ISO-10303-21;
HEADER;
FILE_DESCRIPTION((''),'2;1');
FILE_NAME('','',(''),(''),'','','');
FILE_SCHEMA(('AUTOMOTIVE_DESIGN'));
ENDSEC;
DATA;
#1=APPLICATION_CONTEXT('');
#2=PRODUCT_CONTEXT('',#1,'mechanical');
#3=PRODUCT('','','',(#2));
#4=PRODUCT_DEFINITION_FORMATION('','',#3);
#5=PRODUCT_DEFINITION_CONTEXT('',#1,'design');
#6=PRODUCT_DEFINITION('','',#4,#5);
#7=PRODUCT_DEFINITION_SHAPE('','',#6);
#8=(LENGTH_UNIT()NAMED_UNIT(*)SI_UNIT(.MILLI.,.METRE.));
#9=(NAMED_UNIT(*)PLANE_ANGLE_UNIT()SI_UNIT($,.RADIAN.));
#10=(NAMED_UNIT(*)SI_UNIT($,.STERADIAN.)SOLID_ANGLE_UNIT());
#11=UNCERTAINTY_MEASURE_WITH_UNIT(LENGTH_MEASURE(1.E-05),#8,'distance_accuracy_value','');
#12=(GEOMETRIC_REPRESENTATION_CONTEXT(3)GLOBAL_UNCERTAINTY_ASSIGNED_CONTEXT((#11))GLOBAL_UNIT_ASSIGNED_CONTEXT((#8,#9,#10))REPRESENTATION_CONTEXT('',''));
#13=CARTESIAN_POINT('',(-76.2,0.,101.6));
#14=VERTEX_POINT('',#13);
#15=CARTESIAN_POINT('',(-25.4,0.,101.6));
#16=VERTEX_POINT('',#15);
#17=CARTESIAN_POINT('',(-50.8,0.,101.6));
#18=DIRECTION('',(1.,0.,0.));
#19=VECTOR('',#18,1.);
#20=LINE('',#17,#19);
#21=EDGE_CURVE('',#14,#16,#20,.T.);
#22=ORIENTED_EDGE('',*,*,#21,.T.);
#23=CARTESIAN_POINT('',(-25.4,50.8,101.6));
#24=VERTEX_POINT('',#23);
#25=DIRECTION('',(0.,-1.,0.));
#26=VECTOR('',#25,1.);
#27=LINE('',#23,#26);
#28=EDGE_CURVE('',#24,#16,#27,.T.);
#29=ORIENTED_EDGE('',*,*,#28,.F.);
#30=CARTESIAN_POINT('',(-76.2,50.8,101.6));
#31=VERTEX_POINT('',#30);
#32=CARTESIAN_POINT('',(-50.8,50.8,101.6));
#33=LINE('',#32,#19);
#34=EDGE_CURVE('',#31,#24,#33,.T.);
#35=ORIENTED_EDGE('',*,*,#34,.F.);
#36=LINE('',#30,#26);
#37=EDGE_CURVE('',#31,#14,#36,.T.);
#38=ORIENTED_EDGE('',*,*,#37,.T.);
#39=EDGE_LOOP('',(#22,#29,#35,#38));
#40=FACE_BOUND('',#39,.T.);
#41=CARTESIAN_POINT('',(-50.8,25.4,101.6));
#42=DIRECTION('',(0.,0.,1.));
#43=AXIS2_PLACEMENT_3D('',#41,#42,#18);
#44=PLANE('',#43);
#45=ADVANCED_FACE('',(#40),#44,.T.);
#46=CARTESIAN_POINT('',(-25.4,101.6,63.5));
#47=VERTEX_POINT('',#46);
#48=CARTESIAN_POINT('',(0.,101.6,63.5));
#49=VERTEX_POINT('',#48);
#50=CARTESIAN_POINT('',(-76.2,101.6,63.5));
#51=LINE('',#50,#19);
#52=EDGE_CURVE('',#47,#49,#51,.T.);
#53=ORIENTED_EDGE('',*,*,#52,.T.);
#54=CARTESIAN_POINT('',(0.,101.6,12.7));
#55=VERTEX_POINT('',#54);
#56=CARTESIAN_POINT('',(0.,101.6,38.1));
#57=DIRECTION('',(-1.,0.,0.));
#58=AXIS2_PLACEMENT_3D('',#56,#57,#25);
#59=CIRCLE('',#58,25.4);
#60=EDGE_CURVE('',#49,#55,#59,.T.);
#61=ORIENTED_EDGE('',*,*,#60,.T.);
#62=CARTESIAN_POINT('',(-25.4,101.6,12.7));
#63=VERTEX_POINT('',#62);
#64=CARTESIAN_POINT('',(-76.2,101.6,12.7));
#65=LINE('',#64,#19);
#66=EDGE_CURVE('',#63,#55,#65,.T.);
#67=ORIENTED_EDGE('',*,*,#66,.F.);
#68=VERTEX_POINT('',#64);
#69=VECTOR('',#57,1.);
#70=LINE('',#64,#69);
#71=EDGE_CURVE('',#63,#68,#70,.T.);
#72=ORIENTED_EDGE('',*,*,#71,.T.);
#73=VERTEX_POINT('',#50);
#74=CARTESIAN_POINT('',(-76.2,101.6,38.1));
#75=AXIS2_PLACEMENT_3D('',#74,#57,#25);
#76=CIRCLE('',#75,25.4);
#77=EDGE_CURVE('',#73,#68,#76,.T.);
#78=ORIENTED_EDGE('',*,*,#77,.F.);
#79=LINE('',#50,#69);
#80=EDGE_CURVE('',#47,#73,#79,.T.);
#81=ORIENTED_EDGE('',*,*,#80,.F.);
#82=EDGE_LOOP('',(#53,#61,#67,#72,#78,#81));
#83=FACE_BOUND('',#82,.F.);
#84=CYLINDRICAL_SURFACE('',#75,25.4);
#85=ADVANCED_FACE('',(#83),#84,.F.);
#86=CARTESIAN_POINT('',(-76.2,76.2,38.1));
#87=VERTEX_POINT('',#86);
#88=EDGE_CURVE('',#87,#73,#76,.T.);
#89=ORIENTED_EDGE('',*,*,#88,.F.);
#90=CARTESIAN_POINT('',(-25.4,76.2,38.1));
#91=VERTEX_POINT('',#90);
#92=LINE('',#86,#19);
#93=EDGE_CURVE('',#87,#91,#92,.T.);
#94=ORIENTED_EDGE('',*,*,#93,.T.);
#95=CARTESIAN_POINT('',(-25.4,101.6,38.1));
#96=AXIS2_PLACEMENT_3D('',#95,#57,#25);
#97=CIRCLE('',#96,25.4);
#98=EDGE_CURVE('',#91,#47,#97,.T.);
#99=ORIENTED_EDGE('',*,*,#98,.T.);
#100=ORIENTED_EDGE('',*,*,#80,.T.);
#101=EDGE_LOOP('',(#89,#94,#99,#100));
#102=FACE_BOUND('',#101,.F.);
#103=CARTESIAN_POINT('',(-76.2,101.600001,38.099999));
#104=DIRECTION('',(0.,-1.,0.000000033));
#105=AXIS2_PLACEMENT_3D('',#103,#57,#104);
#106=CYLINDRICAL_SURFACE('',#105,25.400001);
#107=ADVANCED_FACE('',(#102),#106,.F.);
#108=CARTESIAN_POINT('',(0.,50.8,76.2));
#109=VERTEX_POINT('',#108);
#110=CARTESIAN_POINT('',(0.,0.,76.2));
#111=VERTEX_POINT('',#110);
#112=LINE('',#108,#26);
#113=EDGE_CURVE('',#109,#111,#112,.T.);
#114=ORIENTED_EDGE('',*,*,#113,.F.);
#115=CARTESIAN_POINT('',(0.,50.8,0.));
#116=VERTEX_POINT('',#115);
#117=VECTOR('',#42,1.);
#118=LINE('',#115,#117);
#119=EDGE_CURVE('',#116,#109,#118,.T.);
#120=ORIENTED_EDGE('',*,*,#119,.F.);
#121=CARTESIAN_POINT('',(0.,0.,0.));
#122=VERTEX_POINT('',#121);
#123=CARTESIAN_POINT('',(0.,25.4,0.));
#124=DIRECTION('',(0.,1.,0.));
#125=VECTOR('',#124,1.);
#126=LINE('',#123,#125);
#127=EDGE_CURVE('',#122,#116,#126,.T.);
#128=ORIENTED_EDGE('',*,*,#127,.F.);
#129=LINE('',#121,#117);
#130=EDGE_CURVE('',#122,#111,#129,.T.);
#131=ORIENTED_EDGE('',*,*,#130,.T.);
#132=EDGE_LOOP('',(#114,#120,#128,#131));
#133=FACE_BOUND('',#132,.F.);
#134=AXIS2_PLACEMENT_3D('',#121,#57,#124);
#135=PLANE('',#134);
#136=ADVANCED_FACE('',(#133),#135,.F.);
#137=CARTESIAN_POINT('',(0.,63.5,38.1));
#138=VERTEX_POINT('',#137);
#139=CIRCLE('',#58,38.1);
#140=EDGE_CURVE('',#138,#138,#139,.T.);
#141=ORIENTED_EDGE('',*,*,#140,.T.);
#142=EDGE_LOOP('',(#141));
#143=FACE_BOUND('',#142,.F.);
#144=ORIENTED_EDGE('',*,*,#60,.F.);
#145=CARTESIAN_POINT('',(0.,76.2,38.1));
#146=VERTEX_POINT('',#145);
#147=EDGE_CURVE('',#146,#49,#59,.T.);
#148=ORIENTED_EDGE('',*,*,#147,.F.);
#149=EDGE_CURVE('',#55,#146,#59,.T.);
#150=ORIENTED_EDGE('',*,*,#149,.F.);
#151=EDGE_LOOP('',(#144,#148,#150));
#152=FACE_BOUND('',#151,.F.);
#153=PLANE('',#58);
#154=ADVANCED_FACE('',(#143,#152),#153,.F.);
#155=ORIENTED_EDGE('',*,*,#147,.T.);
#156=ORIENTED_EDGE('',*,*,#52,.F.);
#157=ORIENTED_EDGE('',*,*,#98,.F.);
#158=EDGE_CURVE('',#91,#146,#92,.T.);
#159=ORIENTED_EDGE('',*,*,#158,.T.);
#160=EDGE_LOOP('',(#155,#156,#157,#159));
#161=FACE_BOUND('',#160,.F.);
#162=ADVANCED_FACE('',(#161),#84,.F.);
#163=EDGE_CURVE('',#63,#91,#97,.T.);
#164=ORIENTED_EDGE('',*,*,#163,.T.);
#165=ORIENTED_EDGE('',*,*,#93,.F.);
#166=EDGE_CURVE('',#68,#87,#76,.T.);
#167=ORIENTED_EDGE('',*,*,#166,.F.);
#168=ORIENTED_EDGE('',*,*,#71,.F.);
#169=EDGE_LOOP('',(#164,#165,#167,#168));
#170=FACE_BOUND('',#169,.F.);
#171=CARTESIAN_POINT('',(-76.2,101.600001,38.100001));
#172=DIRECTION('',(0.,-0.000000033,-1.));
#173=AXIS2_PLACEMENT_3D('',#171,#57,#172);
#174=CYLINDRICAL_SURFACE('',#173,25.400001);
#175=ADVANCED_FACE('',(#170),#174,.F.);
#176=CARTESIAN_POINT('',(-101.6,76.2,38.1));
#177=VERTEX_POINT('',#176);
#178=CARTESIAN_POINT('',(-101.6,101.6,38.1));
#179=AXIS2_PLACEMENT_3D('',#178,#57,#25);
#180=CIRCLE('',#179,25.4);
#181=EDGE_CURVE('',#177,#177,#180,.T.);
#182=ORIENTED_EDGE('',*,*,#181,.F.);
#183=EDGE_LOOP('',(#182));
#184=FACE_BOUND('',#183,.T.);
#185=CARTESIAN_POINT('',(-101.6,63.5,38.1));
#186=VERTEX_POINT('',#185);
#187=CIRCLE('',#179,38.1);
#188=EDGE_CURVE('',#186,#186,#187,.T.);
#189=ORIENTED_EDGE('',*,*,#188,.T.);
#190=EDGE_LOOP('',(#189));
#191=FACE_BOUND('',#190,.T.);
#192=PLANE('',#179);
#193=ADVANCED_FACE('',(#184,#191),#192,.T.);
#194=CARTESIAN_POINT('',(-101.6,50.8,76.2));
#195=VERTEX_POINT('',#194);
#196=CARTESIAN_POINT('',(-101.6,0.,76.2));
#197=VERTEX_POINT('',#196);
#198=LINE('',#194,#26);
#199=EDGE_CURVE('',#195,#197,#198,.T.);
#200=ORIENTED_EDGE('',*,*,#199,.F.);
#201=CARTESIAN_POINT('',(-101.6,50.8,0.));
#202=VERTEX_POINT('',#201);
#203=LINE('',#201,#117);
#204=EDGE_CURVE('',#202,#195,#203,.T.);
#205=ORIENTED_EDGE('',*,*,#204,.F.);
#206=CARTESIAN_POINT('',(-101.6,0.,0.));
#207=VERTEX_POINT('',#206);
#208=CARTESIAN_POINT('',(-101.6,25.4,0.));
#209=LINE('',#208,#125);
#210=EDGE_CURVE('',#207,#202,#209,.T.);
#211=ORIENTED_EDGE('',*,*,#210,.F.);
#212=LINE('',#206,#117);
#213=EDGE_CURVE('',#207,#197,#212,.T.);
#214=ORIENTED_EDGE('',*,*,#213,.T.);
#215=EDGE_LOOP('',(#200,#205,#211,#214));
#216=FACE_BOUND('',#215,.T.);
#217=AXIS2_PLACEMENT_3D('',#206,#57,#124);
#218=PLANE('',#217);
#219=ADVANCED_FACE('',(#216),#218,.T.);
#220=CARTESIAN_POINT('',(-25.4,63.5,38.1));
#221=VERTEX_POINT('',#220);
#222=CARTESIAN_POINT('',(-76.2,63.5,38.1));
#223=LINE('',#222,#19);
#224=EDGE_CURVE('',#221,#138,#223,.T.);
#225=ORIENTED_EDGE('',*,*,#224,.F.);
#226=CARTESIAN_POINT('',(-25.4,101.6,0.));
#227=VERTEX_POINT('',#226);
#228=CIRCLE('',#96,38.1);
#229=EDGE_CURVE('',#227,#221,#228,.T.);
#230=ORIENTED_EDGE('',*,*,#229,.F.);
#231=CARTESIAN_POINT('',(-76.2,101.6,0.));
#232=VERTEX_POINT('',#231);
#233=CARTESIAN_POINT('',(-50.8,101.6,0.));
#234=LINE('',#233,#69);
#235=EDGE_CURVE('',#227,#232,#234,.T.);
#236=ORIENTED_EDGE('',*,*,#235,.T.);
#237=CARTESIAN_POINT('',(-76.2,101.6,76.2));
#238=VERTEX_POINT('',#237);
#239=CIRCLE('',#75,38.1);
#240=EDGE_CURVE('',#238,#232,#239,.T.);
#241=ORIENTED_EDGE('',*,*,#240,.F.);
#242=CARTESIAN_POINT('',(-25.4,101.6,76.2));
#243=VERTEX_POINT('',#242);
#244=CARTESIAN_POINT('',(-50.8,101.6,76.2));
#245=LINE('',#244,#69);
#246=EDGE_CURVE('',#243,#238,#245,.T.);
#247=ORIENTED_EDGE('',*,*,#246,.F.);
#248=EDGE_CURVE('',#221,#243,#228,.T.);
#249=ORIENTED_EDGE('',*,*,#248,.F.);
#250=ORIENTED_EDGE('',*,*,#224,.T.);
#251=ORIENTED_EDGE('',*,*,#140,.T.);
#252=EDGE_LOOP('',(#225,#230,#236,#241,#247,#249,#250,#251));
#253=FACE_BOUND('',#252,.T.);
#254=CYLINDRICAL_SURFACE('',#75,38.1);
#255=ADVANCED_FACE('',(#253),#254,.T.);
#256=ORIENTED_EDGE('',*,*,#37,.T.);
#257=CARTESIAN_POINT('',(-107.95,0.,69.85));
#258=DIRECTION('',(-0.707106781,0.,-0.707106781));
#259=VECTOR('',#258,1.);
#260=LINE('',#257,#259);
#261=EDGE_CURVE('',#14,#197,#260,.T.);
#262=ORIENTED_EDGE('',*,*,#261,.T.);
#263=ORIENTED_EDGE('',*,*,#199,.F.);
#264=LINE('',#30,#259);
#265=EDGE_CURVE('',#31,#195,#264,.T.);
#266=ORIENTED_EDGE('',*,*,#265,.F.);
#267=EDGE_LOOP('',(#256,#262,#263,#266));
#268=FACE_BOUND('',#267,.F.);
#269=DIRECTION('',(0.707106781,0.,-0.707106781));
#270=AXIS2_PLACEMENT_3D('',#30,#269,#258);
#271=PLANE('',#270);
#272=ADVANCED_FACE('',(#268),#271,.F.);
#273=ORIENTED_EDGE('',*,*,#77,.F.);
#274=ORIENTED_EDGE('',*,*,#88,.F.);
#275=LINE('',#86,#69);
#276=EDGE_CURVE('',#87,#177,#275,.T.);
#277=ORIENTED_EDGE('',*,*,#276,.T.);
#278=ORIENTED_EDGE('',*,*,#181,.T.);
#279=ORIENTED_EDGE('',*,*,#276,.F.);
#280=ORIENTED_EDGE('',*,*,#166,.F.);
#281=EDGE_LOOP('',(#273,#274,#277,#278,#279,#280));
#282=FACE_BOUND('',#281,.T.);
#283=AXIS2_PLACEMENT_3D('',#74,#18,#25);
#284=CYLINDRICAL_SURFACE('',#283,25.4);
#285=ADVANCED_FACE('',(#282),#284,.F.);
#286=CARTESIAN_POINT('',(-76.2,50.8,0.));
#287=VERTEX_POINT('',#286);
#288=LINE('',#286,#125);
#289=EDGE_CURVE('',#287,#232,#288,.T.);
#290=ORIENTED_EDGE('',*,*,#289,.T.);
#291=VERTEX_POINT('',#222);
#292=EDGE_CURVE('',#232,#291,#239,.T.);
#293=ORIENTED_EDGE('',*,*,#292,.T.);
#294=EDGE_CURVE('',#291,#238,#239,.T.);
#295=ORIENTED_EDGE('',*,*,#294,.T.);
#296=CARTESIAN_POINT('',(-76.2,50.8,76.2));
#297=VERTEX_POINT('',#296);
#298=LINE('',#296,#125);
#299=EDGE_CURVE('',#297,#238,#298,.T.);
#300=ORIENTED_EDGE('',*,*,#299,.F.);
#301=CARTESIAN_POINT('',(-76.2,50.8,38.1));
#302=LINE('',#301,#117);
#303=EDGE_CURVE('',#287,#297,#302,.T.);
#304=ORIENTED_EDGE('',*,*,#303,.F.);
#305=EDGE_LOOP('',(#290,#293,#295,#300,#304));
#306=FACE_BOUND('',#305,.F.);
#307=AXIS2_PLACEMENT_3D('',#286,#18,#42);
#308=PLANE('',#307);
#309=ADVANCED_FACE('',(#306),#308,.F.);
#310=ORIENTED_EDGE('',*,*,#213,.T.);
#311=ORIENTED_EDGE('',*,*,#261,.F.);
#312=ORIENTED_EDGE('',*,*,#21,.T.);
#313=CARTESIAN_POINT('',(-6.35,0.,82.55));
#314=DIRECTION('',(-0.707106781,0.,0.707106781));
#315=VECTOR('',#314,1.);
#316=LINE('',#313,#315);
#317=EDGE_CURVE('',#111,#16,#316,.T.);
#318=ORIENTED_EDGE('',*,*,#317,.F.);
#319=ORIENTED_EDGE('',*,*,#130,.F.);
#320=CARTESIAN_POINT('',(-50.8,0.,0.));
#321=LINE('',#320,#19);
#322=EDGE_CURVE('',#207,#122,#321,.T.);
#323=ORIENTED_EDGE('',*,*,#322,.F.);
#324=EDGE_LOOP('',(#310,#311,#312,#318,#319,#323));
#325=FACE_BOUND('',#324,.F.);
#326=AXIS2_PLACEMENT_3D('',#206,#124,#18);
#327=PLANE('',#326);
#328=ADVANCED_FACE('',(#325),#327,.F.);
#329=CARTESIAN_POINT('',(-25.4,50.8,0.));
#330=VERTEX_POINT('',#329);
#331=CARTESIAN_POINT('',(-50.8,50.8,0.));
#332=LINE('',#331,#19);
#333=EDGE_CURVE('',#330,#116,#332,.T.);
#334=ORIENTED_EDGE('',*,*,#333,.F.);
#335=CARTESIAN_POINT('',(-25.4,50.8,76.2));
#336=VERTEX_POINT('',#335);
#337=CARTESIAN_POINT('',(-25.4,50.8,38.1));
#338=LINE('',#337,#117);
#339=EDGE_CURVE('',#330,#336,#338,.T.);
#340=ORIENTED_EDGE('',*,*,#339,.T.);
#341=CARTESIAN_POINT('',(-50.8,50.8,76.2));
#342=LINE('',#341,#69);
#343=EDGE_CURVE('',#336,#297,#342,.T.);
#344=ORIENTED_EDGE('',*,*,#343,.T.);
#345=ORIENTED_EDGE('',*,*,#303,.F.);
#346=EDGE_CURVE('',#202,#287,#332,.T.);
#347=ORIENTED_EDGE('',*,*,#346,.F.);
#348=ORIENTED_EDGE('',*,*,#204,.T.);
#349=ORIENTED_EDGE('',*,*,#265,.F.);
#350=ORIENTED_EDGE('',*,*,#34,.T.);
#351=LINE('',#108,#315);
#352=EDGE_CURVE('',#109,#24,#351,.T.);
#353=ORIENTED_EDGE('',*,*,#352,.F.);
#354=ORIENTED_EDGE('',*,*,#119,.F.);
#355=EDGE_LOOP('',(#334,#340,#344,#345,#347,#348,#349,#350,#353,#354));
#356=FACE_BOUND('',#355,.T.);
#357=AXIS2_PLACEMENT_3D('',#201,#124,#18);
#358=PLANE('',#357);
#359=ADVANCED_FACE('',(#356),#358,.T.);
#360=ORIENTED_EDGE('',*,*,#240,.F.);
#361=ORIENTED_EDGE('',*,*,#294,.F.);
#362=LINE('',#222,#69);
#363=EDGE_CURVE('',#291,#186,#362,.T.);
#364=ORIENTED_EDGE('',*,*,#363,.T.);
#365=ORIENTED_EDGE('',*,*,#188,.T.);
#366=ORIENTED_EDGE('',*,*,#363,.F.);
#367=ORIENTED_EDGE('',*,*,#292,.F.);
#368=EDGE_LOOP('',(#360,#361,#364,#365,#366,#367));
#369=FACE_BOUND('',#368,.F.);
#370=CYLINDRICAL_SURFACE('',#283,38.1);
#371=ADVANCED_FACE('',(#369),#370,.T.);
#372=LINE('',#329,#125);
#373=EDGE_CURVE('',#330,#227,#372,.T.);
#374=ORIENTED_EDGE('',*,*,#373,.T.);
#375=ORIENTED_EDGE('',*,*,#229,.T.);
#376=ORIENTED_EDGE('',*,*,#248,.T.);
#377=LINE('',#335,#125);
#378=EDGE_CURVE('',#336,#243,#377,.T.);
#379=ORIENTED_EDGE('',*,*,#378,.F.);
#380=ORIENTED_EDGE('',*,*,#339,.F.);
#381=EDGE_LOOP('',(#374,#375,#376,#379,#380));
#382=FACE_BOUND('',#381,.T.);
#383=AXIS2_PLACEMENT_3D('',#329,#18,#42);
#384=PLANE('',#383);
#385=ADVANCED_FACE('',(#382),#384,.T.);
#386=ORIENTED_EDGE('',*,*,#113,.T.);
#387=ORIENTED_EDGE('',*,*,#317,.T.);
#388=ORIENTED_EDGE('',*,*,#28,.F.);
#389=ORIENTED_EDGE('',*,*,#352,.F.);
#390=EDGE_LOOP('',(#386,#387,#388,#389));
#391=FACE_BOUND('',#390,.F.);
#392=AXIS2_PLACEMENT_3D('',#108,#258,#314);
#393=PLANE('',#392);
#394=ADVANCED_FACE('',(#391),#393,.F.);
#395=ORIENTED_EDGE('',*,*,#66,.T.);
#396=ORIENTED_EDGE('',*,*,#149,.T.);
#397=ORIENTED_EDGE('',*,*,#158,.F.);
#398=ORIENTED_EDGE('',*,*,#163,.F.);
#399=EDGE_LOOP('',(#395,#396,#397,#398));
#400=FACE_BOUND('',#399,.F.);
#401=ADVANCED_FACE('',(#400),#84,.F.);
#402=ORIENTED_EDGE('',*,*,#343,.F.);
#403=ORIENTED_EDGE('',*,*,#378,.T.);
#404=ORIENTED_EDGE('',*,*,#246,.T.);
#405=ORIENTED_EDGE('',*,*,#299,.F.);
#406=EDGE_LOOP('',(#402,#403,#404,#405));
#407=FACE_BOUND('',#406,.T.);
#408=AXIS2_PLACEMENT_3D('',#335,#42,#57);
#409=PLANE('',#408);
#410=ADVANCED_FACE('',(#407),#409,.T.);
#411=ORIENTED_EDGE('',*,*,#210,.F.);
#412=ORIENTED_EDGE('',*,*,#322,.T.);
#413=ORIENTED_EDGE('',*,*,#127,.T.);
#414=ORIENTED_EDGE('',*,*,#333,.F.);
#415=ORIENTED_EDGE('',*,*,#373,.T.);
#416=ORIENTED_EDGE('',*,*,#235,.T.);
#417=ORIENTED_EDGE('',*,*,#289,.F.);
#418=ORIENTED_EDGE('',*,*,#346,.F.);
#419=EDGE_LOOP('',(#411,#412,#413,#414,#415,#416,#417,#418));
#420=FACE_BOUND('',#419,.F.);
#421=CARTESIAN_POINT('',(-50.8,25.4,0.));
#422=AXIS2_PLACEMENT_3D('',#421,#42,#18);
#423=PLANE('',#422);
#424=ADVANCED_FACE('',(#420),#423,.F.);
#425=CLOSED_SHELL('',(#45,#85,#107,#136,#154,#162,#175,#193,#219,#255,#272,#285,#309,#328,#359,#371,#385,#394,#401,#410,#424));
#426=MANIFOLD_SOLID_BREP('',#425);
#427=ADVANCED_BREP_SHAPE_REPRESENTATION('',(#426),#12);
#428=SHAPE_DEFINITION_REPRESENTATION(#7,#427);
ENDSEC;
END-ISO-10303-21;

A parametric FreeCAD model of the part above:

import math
import FreeCAD as App
import Part
import Sketcher
from FreeCAD import Vector
Q = App.Units.Quantity


def add_polygon(sketch, points):
    """Adds a closed chain of lines whose ends are joined by coincident constraints."""
    first, n = sketch.GeometryCount, len(points)
    for a, b in zip(points, points[1:] + points[:1]):
        sketch.addGeometry(Part.LineSegment(App.Vector(*a, 0), App.Vector(*b, 0)), False)
    for i in range(n):
        sketch.addConstraint(Sketcher.Constraint("Coincident", first + i, 2, first + (i + 1) % n, 1))

doc = App.newDocument("Part")
body = doc.addObject("PartDesign::Body", "Body")

sketch1 = doc.addObject("Sketcher::SketchObject", "Sketch")
body.addObject(sketch1)
sketch1.AttachmentSupport = (doc.XY_Plane, [""])
sketch1.MapMode = "FlatFace"
add_polygon(sketch1, [(-101.6, 50.8), (-101.6, 0), (0, 0), (0, 50.8)])
sketch1.addConstraint([
    Sketcher.Constraint("Vertical", 0),
    Sketcher.Constraint("Horizontal", 1),
    Sketcher.Constraint("Vertical", 2),
    Sketcher.Constraint("Horizontal", 3),
    Sketcher.Constraint("Coincident", 1, 2, -1, 1),
    Sketcher.Constraint("DistanceX", 1, 1, 1, 2, Q("4 in")),
    Sketcher.Constraint("DistanceY", 0, 2, 0, 1, Q("2 in")),
])
pad1 = doc.addObject("PartDesign::Pad", "Pad")
body.addObject(pad1)
pad1.Profile = sketch1
pad1.Length = Q("4 in")

sketch2 = doc.addObject("Sketcher::SketchObject", "Sketch001")
body.addObject(sketch2)
sketch2.AttachmentSupport = (doc.XZ_Plane, [""])
sketch2.MapMode = "FlatFace"
sketch2.AttachmentOffset = App.Placement(Vector(0, 0, -2 * 25.4), App.Rotation())
add_polygon(sketch2, [(0, 76.2), (-25.4, 101.6), (0, 101.6)])
add_polygon(sketch2, [(-101.6, 101.6), (-76.2, 101.6), (-101.6, 76.2)])
sketch2.addConstraint([
    Sketcher.Constraint("Horizontal", 1),
    Sketcher.Constraint("Vertical", 2),
    Sketcher.Constraint("Horizontal", 3),
    Sketcher.Constraint("Vertical", 5),
    Sketcher.Constraint("PointOnObject", 1, 2, -2),
    Sketcher.Constraint("Perpendicular", 0, 4),
    Sketcher.Constraint("Horizontal", 1, 2, 3, 2),
    Sketcher.Constraint("Horizontal", 2, 2, 4, 2),
    Sketcher.Constraint("Equal", 1, 3),
    Sketcher.Constraint("DistanceX", 1, 1, 1, 2, Q("1 in")),
    Sketcher.Constraint("DistanceY", -1, 1, 0, 2, Q("4 in")),
    Sketcher.Constraint("DistanceX", 3, 2, -1, 1, Q("3 in")),
])
pocket1 = doc.addObject("PartDesign::Pocket", "Pocket")
body.addObject(pocket1)
pocket1.Profile = sketch2
pocket1.Type = "ThroughAll"
pocket1.Reversed = True

sketch3 = doc.addObject("Sketcher::SketchObject", "Sketch002")
body.addObject(sketch3)
sketch3.AttachmentSupport = (doc.XZ_Plane, [""])
sketch3.MapMode = "FlatFace"
sketch3.AttachmentOffset = App.Placement(Vector(0, 0, -2 * 25.4), App.Rotation())
add_polygon(sketch3, [(-25.4, 76.2), (-25.4, 0), (-76.2, 0), (-76.2, 76.2)])
sketch3.addConstraint([
    Sketcher.Constraint("Vertical", 0),
    Sketcher.Constraint("Horizontal", 1),
    Sketcher.Constraint("Vertical", 2),
    Sketcher.Constraint("Horizontal", 3),
    Sketcher.Constraint("PointOnObject", 0, 2, -1),
    Sketcher.Constraint("DistanceX", 1, 2, 1, 1, Q("2 in")),
    Sketcher.Constraint("DistanceY", 0, 2, 0, 1, Q("3 in")),
    Sketcher.Constraint("DistanceX", 0, 2, -1, 1, Q("1 in")),
])
pad2 = doc.addObject("PartDesign::Pad", "Pad001")
body.addObject(pad2)
pad2.Profile = sketch3
pad2.Length = Q("2 in")
pad2.Reversed = True

sketch4 = doc.addObject("Sketcher::SketchObject", "Sketch003")
body.addObject(sketch4)
sketch4.AttachmentSupport = (doc.YZ_Plane, [""])
sketch4.MapMode = "FlatFace"
sketch4.AttachmentOffset = App.Placement(Vector(0, 0, -3 * 25.4), App.Rotation())
sketch4.addGeometry([
    Part.Circle(Vector(101.6, 38.1, 0), Vector(0, 0, 1), 38.1),
    Part.Circle(Vector(101.6, 38.1, 0), Vector(0, 0, 1), 25.4),
], False)
sketch4.addConstraint([
    Sketcher.Constraint("Coincident", 1, 3, 0, 3),
    Sketcher.Constraint("Diameter", 0, Q("3 in")),
    Sketcher.Constraint("Diameter", 1, Q("2 in")),
    Sketcher.Constraint("DistanceX", -1, 1, 0, 3, Q("4 in")),
    Sketcher.Constraint("DistanceY", -1, 1, 0, 3, Q("1.5 in")),
])
pad3 = doc.addObject("PartDesign::Pad", "Pad002")
body.addObject(pad3)
pad3.Profile = sketch4
pad3.Type = "TwoLengths"
pad3.Length = Q("1 in")
pad3.Length2 = Q("3 in")
pad3.Reversed = True

sketch5 = doc.addObject("Sketcher::SketchObject", "Sketch004")
body.addObject(sketch5)
sketch5.AttachmentSupport = (doc.YZ_Plane, [""])
sketch5.MapMode = "FlatFace"
sketch5.AttachmentOffset = App.Placement(Vector(0, 0, -3 * 25.4), App.Rotation())
sketch5.addGeometry([
    Part.ArcOfCircle(Part.Circle(Vector(101.600001, 38.100001, 0), Vector(0, 0, 1), 25.400001), math.radians(-179.999998), math.radians(-90.000002)),
    Part.ArcOfCircle(Part.Circle(Vector(101.600001, 38.099999, 0), Vector(0, 0, 1), 25.400001), math.radians(90.000002), math.radians(179.999998)),
    Part.LineSegment(Vector(101.6, 63.5, 0), Vector(101.6, 12.7, 0)),
], False)
sketch5.addConstraint([
    Sketcher.Constraint("Tangent", 0, 1, 1, 2),
    Sketcher.Constraint("Coincident", 1, 1, 2, 1),
    Sketcher.Constraint("Coincident", 2, 2, 0, 2),
    Sketcher.Constraint("Vertical", 2),
    Sketcher.Constraint("Equal", 0, 1),
    Sketcher.Constraint("Horizontal", 1, 3, 0, 1),
    Sketcher.Constraint("Vertical", 0, 3, 1, 1),
    Sketcher.Constraint("Radius", 0, Q("1 in")),
    Sketcher.Constraint("DistanceX", -1, 1, 0, 3, Q("4 in")),
    Sketcher.Constraint("DistanceY", -1, 1, 0, 3, Q("1.5 in")),
])
pocket2 = doc.addObject("PartDesign::Pocket", "Pocket001")
body.addObject(pocket2)
pocket2.Profile = sketch5
pocket2.Type = "ThroughAll"
pocket2.Reversed = True

doc.recompute()
